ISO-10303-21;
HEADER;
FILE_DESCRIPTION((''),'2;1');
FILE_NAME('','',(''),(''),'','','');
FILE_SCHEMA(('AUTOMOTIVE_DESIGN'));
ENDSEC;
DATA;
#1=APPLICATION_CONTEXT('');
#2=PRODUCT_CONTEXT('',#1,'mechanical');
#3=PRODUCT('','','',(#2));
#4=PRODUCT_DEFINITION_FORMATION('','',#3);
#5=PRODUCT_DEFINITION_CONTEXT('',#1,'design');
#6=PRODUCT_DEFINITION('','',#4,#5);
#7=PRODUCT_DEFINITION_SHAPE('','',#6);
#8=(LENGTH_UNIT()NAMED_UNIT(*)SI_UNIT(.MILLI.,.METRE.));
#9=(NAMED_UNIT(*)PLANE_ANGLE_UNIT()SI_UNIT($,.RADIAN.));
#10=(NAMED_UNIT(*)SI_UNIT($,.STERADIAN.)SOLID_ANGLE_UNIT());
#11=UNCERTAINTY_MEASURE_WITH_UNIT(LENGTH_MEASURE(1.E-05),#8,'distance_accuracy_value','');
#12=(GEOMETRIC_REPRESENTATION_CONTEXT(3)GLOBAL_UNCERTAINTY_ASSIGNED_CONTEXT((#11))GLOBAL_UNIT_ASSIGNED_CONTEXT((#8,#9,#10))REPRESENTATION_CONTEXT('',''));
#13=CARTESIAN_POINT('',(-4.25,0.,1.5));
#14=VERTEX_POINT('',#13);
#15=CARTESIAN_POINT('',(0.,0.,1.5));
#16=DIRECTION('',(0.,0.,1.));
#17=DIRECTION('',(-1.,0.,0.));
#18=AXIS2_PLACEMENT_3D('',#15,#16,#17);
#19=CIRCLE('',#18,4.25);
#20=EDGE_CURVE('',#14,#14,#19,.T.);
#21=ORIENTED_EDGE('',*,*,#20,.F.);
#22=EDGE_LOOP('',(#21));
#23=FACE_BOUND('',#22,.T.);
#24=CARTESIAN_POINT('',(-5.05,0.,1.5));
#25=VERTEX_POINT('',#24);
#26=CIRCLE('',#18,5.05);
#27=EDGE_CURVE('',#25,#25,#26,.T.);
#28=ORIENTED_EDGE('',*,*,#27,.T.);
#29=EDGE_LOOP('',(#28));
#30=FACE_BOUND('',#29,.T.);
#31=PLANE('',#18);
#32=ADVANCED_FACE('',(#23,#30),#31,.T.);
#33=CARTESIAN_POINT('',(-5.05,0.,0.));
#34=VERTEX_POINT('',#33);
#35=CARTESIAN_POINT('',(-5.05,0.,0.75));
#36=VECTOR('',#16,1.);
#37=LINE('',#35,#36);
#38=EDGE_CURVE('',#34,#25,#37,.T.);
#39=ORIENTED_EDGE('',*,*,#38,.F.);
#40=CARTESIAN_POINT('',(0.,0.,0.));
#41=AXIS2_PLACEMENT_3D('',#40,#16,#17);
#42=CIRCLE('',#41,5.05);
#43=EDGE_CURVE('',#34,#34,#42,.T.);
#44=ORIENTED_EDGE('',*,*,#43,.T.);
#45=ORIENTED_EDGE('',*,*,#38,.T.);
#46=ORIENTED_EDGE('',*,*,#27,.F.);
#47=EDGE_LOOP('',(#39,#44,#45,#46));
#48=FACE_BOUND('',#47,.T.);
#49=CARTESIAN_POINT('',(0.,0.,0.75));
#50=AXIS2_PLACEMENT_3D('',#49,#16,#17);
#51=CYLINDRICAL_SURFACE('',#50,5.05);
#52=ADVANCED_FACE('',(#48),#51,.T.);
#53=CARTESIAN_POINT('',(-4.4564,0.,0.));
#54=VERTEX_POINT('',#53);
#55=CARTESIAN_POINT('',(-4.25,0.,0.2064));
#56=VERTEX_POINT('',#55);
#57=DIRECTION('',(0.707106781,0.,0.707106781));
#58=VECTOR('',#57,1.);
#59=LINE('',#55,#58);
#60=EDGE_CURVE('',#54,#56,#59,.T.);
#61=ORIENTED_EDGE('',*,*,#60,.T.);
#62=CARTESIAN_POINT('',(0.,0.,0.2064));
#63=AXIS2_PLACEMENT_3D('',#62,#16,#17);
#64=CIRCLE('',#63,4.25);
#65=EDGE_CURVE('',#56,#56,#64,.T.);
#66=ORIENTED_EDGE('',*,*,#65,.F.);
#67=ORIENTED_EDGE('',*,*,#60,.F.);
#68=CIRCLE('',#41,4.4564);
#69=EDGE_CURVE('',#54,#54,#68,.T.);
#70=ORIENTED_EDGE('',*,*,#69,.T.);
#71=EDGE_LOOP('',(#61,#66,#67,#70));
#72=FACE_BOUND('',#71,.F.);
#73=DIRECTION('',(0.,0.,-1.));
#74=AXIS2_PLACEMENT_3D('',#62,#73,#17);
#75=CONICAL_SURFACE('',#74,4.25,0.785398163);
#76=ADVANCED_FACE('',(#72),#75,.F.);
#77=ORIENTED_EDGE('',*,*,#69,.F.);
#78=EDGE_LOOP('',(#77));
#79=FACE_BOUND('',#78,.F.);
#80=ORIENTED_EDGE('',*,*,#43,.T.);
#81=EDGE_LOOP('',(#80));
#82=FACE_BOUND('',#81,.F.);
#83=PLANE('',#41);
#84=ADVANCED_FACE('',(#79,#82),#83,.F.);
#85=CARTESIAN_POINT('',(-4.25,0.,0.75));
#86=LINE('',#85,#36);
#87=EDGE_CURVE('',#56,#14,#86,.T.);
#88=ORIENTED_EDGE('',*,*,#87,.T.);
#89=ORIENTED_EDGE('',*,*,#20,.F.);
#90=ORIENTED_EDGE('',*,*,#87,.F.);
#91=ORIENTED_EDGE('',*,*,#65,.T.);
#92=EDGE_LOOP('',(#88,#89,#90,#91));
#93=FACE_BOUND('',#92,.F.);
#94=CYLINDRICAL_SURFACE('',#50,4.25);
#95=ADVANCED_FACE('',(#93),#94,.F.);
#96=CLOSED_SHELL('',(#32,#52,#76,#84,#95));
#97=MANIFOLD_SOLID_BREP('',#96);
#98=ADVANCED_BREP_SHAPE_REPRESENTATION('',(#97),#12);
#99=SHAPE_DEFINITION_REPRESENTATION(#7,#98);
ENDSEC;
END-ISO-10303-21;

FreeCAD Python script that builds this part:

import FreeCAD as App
import Part
import Sketcher
from FreeCAD import Vector


def edges_at(feature, points):
    """Names of the edges that pass closest to the given points."""
    edges = feature.Shape.Edges
    near = lambda p: min(range(len(edges)), key=lambda i: edges[i].distToShape(Part.Vertex(*p))[0])
    return sorted({f"Edge{near(p) + 1}" for p in points})

doc = App.newDocument("Part")
params = doc.addObject("Spreadsheet::Sheet", "Params")
for row, (alias, value) in enumerate([
    ("sketch1_width", "0.8 mm"),
    ("sketch1_height", "1.5 mm"),
    ("revolution_angle", "360 deg"),
    ("chamfer_size", "0.2064 mm"),
], start=1):
    params.set(f"A{row}", alias)
    params.set(f"B{row}", "=" + value)
    params.setAlias(f"B{row}", alias)

body = doc.addObject("PartDesign::Body", "Body")

# Sketch on XZ plane
sketch1 = doc.addObject("Sketcher::SketchObject", "Sketch")
body.addObject(sketch1)
sketch1.AttachmentSupport = (doc.XZ_Plane, [""])
sketch1.MapMode = "FlatFace"
sketch1.addGeometry(Part.LineSegment(Vector(-5, 1.5, 0), Vector(-5, 0, 0)), False)
sketch1.addGeometry(Part.LineSegment(Vector(-5, 0, 0), Vector(-4.2, 0, 0)), False)
sketch1.addGeometry(Part.LineSegment(Vector(-4.2, 0, 0), Vector(-4.2, 1.5, 0)), False)
sketch1.addGeometry(Part.LineSegment(Vector(-4.2, 1.5, 0), Vector(-5, 1.5, 0)), False)
sketch1.addConstraint(Sketcher.Constraint("Coincident", 0, 2, 1, 1))
sketch1.addConstraint(Sketcher.Constraint("Coincident", 1, 2, 2, 1))
sketch1.addConstraint(Sketcher.Constraint("Coincident", 2, 2, 3, 1))
sketch1.addConstraint(Sketcher.Constraint("Coincident", 3, 2, 0, 1))
sketch1.addConstraint(Sketcher.Constraint("Vertical", 0))
sketch1.addConstraint(Sketcher.Constraint("Horizontal", 1))
sketch1.addConstraint(Sketcher.Constraint("Vertical", 2))
sketch1.addConstraint(Sketcher.Constraint("Horizontal", 3))
sketch1.addConstraint(Sketcher.Constraint("PointOnObject", 0, 2, -1))
sketch1.addConstraint(Sketcher.Constraint("DistanceX", 1, 1, 1, 2, 0.8))
sketch1.addConstraint(Sketcher.Constraint("DistanceY", 0, 2, 0, 1, 1.5))
sketch1.addConstraint(Sketcher.Constraint("DistanceX", 0, 2, -1, 1, 5.05))
sketch1.setExpression("Constraints[9]", "Params.sketch1_width")
sketch1.setExpression("Constraints[10]", "Params.sketch1_height")
revolution = doc.addObject("PartDesign::Revolution", "Revolution")
body.addObject(revolution)
revolution.Profile = sketch1
revolution.ReferenceAxis = (sketch1, ["V_Axis"])
revolution.setExpression("Angle", "Params.revolution_angle")
doc.recompute()

chamfer = doc.addObject("PartDesign::Chamfer", "Chamfer")
body.addObject(chamfer)
chamfer.Base = (revolution, edges_at(revolution, [(4.25, 0, 0)]))
chamfer.setExpression("Size", "Params.chamfer_size")

doc.recompute()
